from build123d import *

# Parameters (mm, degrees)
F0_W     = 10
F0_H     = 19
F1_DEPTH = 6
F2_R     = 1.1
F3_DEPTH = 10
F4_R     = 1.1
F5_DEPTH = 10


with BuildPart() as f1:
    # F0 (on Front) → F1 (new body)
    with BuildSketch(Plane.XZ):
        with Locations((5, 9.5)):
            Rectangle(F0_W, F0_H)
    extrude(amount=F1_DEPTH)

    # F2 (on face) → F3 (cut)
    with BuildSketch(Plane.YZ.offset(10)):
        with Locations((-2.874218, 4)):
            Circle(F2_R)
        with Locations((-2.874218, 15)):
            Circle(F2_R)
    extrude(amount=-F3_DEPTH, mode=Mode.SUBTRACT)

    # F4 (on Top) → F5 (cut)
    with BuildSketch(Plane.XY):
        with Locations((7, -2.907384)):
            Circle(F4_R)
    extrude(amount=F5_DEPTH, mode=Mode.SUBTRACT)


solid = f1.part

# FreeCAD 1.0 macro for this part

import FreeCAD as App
import Part
import Sketcher

V = App.Vector


def add_polygon(sketch, points):
    """Adds a closed chain of lines whose ends are joined by coincident constraints."""
    first, n = sketch.GeometryCount, len(points)
    for a, b in zip(points, points[1:] + points[:1]):
        sketch.addGeometry(Part.LineSegment(App.Vector(*a, 0), App.Vector(*b, 0)), False)
    for i in range(n):
        sketch.addConstraint(Sketcher.Constraint("Coincident", first + i, 2, first + (i + 1) % n, 1))

doc = App.newDocument("Part")
body = doc.addObject("PartDesign::Body", "Body")

sketch1 = doc.addObject("Sketcher::SketchObject", "Sketch")
body.addObject(sketch1)
sketch1.AttachmentSupport = (doc.XZ_Plane, [""])
sketch1.MapMode = "FlatFace"
add_polygon(sketch1, [(0, 19), (0, 0), (10, 0), (10, 19)])
sketch1.addConstraint([
    Sketcher.Constraint("Vertical", 0),
    Sketcher.Constraint("Horizontal", 1),
    Sketcher.Constraint("Vertical", 2),
    Sketcher.Constraint("Horizontal", 3),
    Sketcher.Constraint("Coincident", 0, 2, -1, 1),
    Sketcher.Constraint("DistanceX", 1, 1, 1, 2, 10.0),
    Sketcher.Constraint("DistanceY", 0, 2, 0, 1, 19.0),
])
pad1 = doc.addObject("PartDesign::Pad", "Pad")
body.addObject(pad1)
pad1.Profile = sketch1
pad1.Length = 6

sketch2 = doc.addObject("Sketcher::SketchObject", "Sketch001")
body.addObject(sketch2)
sketch2.AttachmentSupport = (doc.YZ_Plane, [""])
sketch2.MapMode = "FlatFace"
sketch2.AttachmentOffset = App.Placement(V(0, 0, 10), App.Rotation())
sketch2.addGeometry([
    Part.Circle(V(-2.9, 4, 0), V(0, 0, 1), 1.1),
    Part.Circle(V(-2.9, 15, 0), V(0, 0, 1), 1.1),
], False)
sketch2.addConstraint([
    Sketcher.Constraint("Equal", 0, 1),
    Sketcher.Constraint("Vertical", 0, 3, 1, 3),
    Sketcher.Constraint("Diameter", 0, 2.2),
    Sketcher.Constraint("DistanceY", -1, 1, 0, 3, 4.0),
    Sketcher.Constraint("DistanceY", -1, 1, 1, 3, 15.0),
    Sketcher.Constraint("DistanceX", 0, 3, -1, 1, 2.874218),
])
pocket1 = doc.addObject("PartDesign::Pocket", "Pocket")
body.addObject(pocket1)
pocket1.Profile = sketch2
pocket1.Length = 10

sketch3 = doc.addObject("Sketcher::SketchObject", "Sketch002")
body.addObject(sketch3)
sketch3.AttachmentSupport = (doc.XY_Plane, [""])
sketch3.MapMode = "FlatFace"
sketch3.addGeometry(Part.Circle(V(7, -2.9, 0), V(0, 0, 1), 1.1), False)
sketch3.addConstraint([
    Sketcher.Constraint("Diameter", 0, 2.2),
    Sketcher.Constraint("DistanceX", -1, 1, 0, 3, 7.0),
    Sketcher.Constraint("DistanceY", 0, 3, -1, 1, 2.907384),
])
pocket2 = doc.addObject("PartDesign::Pocket", "Pocket001")
body.addObject(pocket2)
pocket2.Profile = sketch3
pocket2.Length = 10
pocket2.Reversed = True

doc.recompute()
